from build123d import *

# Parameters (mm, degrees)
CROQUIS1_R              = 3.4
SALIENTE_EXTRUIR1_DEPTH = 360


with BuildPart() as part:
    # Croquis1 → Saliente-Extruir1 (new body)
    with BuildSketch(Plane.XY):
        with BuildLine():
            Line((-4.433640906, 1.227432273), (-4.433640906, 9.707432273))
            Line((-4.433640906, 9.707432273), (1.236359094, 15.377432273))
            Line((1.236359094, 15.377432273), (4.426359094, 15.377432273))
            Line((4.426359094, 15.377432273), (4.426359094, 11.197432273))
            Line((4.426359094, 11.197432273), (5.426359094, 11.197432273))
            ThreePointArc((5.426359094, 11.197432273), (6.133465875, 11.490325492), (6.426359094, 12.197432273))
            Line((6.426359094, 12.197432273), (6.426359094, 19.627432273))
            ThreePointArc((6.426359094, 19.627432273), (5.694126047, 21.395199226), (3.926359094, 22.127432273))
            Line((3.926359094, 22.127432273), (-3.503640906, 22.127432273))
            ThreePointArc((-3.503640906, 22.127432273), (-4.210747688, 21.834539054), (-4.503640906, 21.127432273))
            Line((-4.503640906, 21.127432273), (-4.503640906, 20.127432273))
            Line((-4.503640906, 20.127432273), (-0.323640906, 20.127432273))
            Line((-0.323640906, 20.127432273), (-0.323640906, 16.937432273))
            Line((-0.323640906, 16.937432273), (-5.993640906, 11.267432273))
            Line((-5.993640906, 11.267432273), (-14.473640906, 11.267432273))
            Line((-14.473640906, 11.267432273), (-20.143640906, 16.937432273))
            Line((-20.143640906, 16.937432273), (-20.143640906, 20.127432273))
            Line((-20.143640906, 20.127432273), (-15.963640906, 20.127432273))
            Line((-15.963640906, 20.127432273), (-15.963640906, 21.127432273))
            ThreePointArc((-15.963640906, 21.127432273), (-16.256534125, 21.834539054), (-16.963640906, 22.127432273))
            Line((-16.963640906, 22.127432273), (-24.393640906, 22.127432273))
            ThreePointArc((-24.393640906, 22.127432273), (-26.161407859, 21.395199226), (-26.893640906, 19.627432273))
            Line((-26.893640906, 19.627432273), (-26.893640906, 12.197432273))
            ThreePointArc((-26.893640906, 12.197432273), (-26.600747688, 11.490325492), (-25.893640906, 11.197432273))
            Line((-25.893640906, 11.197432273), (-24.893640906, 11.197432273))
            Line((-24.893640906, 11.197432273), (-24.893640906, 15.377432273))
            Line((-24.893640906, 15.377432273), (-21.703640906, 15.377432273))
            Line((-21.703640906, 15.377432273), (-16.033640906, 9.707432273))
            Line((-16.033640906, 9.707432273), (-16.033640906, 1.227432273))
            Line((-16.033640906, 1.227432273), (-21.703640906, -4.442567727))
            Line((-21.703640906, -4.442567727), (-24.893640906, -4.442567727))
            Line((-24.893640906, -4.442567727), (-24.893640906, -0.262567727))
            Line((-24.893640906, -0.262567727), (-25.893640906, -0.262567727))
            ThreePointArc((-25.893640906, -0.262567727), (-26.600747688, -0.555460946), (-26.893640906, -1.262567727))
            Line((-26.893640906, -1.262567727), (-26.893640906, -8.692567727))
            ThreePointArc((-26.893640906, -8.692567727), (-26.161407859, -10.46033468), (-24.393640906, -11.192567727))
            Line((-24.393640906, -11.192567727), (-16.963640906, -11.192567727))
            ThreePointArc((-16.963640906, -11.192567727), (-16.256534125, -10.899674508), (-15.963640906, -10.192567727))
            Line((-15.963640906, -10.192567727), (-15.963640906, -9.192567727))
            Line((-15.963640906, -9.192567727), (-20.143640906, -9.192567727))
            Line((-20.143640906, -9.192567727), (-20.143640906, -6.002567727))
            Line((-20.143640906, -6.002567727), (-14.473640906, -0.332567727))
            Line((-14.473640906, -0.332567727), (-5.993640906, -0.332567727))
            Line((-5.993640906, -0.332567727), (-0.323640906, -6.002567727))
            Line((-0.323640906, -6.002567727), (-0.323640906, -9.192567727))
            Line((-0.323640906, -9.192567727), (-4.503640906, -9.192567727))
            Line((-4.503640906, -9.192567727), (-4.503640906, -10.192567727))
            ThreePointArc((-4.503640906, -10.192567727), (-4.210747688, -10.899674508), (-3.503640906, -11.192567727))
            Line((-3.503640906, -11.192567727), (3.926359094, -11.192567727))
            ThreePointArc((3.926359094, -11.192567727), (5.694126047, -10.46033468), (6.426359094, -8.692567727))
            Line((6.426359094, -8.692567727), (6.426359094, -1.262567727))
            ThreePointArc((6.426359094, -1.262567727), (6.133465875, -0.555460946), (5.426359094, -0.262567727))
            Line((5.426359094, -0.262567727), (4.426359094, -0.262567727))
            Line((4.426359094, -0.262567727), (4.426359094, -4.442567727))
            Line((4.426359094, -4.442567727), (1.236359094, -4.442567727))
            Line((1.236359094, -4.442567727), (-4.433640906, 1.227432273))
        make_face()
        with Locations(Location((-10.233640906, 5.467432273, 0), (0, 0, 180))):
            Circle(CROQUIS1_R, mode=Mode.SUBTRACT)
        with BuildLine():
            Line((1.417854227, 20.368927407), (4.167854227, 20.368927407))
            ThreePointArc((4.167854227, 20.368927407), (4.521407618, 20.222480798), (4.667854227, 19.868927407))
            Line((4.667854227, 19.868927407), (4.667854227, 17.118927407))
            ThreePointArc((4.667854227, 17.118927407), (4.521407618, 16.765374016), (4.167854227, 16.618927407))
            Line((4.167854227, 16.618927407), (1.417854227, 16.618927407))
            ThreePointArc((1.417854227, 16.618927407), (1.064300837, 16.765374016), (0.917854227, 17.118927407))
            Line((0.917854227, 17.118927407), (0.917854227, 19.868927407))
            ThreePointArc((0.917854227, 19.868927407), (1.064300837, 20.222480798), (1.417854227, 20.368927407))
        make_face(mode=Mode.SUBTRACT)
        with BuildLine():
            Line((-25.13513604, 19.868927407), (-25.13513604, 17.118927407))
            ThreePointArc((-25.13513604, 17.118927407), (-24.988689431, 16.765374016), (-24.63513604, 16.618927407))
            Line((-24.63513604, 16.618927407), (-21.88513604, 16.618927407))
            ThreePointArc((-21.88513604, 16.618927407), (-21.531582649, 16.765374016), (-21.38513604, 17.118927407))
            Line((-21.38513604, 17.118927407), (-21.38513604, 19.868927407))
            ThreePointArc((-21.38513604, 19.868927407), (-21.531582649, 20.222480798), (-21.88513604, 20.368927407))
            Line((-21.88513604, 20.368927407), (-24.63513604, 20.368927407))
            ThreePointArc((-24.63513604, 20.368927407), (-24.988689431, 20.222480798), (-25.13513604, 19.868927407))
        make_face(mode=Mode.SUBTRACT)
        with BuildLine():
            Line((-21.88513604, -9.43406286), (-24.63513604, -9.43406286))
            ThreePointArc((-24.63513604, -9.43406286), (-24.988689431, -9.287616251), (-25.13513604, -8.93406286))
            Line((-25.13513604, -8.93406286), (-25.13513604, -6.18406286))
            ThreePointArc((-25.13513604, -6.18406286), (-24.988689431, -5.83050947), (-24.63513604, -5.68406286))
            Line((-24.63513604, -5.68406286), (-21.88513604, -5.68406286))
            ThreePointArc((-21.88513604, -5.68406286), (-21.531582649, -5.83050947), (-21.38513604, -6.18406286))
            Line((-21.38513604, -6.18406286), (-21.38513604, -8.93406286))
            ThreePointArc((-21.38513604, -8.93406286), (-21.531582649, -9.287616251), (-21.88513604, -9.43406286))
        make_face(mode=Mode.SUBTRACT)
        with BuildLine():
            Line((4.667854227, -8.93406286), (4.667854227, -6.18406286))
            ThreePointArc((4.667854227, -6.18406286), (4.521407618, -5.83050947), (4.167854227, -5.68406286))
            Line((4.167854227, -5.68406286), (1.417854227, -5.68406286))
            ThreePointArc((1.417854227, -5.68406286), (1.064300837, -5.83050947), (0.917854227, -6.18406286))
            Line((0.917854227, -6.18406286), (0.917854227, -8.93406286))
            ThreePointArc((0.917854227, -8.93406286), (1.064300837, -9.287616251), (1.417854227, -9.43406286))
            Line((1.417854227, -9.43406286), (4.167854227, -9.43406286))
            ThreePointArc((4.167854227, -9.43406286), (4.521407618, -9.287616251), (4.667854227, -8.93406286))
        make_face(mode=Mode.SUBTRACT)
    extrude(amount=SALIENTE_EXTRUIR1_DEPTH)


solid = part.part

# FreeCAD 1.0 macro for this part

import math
import FreeCAD as App
import Part
import Sketcher

V = App.Vector

doc = App.newDocument("Part")
body = doc.addObject("PartDesign::Body", "Body")

sketch1 = doc.addObject("Sketcher::SketchObject", "Sketch")
body.addObject(sketch1)
sketch1.AttachmentSupport = (doc.XY_Plane, [""])
sketch1.MapMode = "FlatFace"
sketch1.addGeometry(Part.LineSegment(V(-4.43, 1.23, 0), V(-4.43, 9.71, 0)), False)
sketch1.addGeometry(Part.LineSegment(V(-4.43, 9.71, 0), V(1.24, 15.38, 0)), False)
sketch1.addGeometry(Part.LineSegment(V(1.24, 15.38, 0), V(4.43, 15.38, 0)), False)
sketch1.addGeometry(Part.LineSegment(V(4.43, 15.38, 0), V(4.43, 11.2, 0)), False)
sketch1.addGeometry(Part.LineSegment(V(4.43, 11.2, 0), V(5.43, 11.2, 0)), False)
sketch1.addGeometry(Part.ArcOfCircle(Part.Circle(V(5.43, 12.2, 0), V(0, 0, 1), 1), math.radians(-90), math.radians(0)), False)
sketch1.addGeometry(Part.LineSegment(V(6.43, 12.2, 0), V(6.43, 19.63, 0)), False)
sketch1.addGeometry(Part.ArcOfCircle(Part.Circle(V(3.93, 19.63, 0), V(0, 0, 1), 2.5), math.radians(0), math.radians(90)), False)
sketch1.addGeometry(Part.LineSegment(V(3.93, 22.13, 0), V(-3.5, 22.13, 0)), False)
sketch1.addGeometry(Part.ArcOfCircle(Part.Circle(V(-3.5, 21.13, 0), V(0, 0, 1), 1), math.radians(90), math.radians(180)), False)
sketch1.addGeometry(Part.LineSegment(V(-4.5, 21.13, 0), V(-4.5, 20.13, 0)), False)
sketch1.addGeometry(Part.LineSegment(V(-4.5, 20.13, 0), V(-0.32, 20.13, 0)), False)
sketch1.addGeometry(Part.LineSegment(V(-0.32, 20.13, 0), V(-0.32, 16.94, 0)), False)
sketch1.addGeometry(Part.LineSegment(V(-0.32, 16.94, 0), V(-5.99, 11.27, 0)), False)
sketch1.addGeometry(Part.LineSegment(V(-5.99, 11.27, 0), V(-14.47, 11.27, 0)), False)
sketch1.addGeometry(Part.LineSegment(V(-14.47, 11.27, 0), V(-20.14, 16.94, 0)), False)
sketch1.addGeometry(Part.LineSegment(V(-20.14, 16.94, 0), V(-20.14, 20.13, 0)), False)
sketch1.addGeometry(Part.LineSegment(V(-20.14, 20.13, 0), V(-15.96, 20.13, 0)), False)
sketch1.addGeometry(Part.LineSegment(V(-15.96, 20.13, 0), V(-15.96, 21.13, 0)), False)
sketch1.addGeometry(Part.ArcOfCircle(Part.Circle(V(-16.96, 21.13, 0), V(0, 0, 1), 1), math.radians(0), math.radians(90)), False)
sketch1.addGeometry(Part.LineSegment(V(-16.96, 22.13, 0), V(-24.39, 22.13, 0)), False)
sketch1.addGeometry(Part.ArcOfCircle(Part.Circle(V(-24.39, 19.63, 0), V(0, 0, 1), 2.5), math.radians(90), math.radians(180)), False)
sketch1.addGeometry(Part.LineSegment(V(-26.89, 19.63, 0), V(-26.89, 12.2, 0)), False)
sketch1.addGeometry(Part.ArcOfCircle(Part.Circle(V(-25.89, 12.2, 0), V(0, 0, 1), 1), math.radians(180), math.radians(270)), False)
sketch1.addGeometry(Part.LineSegment(V(-25.89, 11.2, 0), V(-24.89, 11.2, 0)), False)
sketch1.addGeometry(Part.LineSegment(V(-24.89, 11.2, 0), V(-24.89, 15.38, 0)), False)
sketch1.addGeometry(Part.LineSegment(V(-24.89, 15.38, 0), V(-21.7, 15.38, 0)), False)
sketch1.addGeometry(Part.LineSegment(V(-21.7, 15.38, 0), V(-16.03, 9.71, 0)), False)
sketch1.addGeometry(Part.LineSegment(V(-16.03, 9.71, 0), V(-16.03, 1.23, 0)), False)
sketch1.addGeometry(Part.LineSegment(V(-16.03, 1.23, 0), V(-21.7, -4.44, 0)), False)
sketch1.addGeometry(Part.LineSegment(V(-21.7, -4.44, 0), V(-24.89, -4.44, 0)), False)
sketch1.addGeometry(Part.LineSegment(V(-24.89, -4.44, 0), V(-24.89, -0.26, 0)), False)
sketch1.addGeometry(Part.LineSegment(V(-24.89, -0.26, 0), V(-25.89, -0.26, 0)), False)
sketch1.addGeometry(Part.ArcOfCircle(Part.Circle(V(-25.89, -1.26, 0), V(0, 0, 1), 1), math.radians(90), math.radians(180)), False)
sketch1.addGeometry(Part.LineSegment(V(-26.89, -1.26, 0), V(-26.89, -8.69, 0)), False)
sketch1.addGeometry(Part.ArcOfCircle(Part.Circle(V(-24.39, -8.69, 0), V(0, 0, 1), 2.5), math.radians(180), math.radians(270)), False)
sketch1.addGeometry(Part.LineSegment(V(-24.39, -11.19, 0), V(-16.96, -11.19, 0)), False)
sketch1.addGeometry(Part.ArcOfCircle(Part.Circle(V(-16.96, -10.19, 0), V(0, 0, 1), 1), math.radians(-90), math.radians(0)), False)
sketch1.addGeometry(Part.LineSegment(V(-15.96, -10.19, 0), V(-15.96, -9.19, 0)), False)
sketch1.addGeometry(Part.LineSegment(V(-15.96, -9.19, 0), V(-20.14, -9.19, 0)), False)
sketch1.addGeometry(Part.LineSegment(V(-20.14, -9.19, 0), V(-20.14, -6, 0)), False)
sketch1.addGeometry(Part.LineSegment(V(-20.14, -6, 0), V(-14.47, -0.33, 0)), False)
sketch1.addGeometry(Part.LineSegment(V(-14.47, -0.33, 0), V(-5.99, -0.33, 0)), False)
sketch1.addGeometry(Part.LineSegment(V(-5.99, -0.33, 0), V(-0.32, -6, 0)), False)
sketch1.addGeometry(Part.LineSegment(V(-0.32, -6, 0), V(-0.32, -9.19, 0)), False)
sketch1.addGeometry(Part.LineSegment(V(-0.32, -9.19, 0), V(-4.5, -9.19, 0)), False)
sketch1.addGeometry(Part.LineSegment(V(-4.5, -9.19, 0), V(-4.5, -10.19, 0)), False)
sketch1.addGeometry(Part.ArcOfCircle(Part.Circle(V(-3.5, -10.19, 0), V(0, 0, 1), 1), math.radians(180), math.radians(270)), False)
sketch1.addGeometry(Part.LineSegment(V(-3.5, -11.19, 0), V(3.93, -11.19, 0)), False)
sketch1.addGeometry(Part.ArcOfCircle(Part.Circle(V(3.93, -8.69, 0), V(0, 0, 1), 2.5), math.radians(-90), math.radians(0)), False)
sketch1.addGeometry(Part.LineSegment(V(6.43, -8.69, 0), V(6.43, -1.26, 0)), False)
sketch1.addGeometry(Part.ArcOfCircle(Part.Circle(V(5.43, -1.26, 0), V(0, 0, 1), 1), math.radians(0), math.radians(90)), False)
sketch1.addGeometry(Part.LineSegment(V(5.43, -0.26, 0), V(4.43, -0.26, 0)), False)
sketch1.addGeometry(Part.LineSegment(V(4.43, -0.26, 0), V(4.43, -4.44, 0)), False)
sketch1.addGeometry(Part.LineSegment(V(4.43, -4.44, 0), V(1.24, -4.44, 0)), False)
sketch1.addGeometry(Part.LineSegment(V(1.24, -4.44, 0), V(-4.43, 1.23, 0)), False)
sketch1.addGeometry(Part.ArcOfCircle(Part.Circle(V(-21.89, -8.93, 0), V(0, 0, 1), 0.5), math.radians(-90), math.radians(0)), False)
sketch1.addGeometry(Part.LineSegment(V(-21.89, -9.43, 0), V(-24.64, -9.43, 0)), False)
sketch1.addGeometry(Part.ArcOfCircle(Part.Circle(V(-24.64, -8.93, 0), V(0, 0, 1), 0.5), math.radians(180), math.radians(270)), False)
sketch1.addGeometry(Part.LineSegment(V(-25.14, -8.93, 0), V(-25.14, -6.18, 0)), False)
sketch1.addGeometry(Part.ArcOfCircle(Part.Circle(V(-24.64, -6.18, 0), V(0, 0, 1), 0.5), math.radians(90), math.radians(180)), False)
sketch1.addGeometry(Part.LineSegment(V(-24.64, -5.68, 0), V(-21.89, -5.68, 0)), False)
sketch1.addGeometry(Part.ArcOfCircle(Part.Circle(V(-21.89, -6.18, 0), V(0, 0, 1), 0.5), math.radians(0), math.radians(90)), False)
sketch1.addGeometry(Part.LineSegment(V(-21.39, -6.18, 0), V(-21.39, -8.93, 0)), False)
sketch1.addGeometry(Part.LineSegment(V(4.67, -6.18, 0), V(4.67, -8.93, 0)), False)
sketch1.addGeometry(Part.ArcOfCircle(Part.Circle(V(4.17, -8.93, 0), V(0, 0, 1), 0.5), math.radians(-90), math.radians(0)), False)
sketch1.addGeometry(Part.LineSegment(V(4.17, -9.43, 0), V(1.42, -9.43, 0)), False)
sketch1.addGeometry(Part.ArcOfCircle(Part.Circle(V(1.42, -8.93, 0), V(0, 0, 1), 0.5), math.radians(180), math.radians(270)), False)
sketch1.addGeometry(Part.LineSegment(V(0.92, -8.93, 0), V(0.92, -6.18, 0)), False)
sketch1.addGeometry(Part.ArcOfCircle(Part.Circle(V(1.42, -6.18, 0), V(0, 0, 1), 0.5), math.radians(90), math.radians(180)), False)
sketch1.addGeometry(Part.LineSegment(V(1.42, -5.68, 0), V(4.17, -5.68, 0)), False)
sketch1.addGeometry(Part.ArcOfCircle(Part.Circle(V(4.17, -6.18, 0), V(0, 0, 1), 0.5), math.radians(0), math.radians(90)), False)
sketch1.addGeometry(Part.Circle(V(-10.23, 5.47, 0), V(0, 0, 1), 3.4), False)
sketch1.addGeometry(Part.LineSegment(V(-25.14, 17.12, 0), V(-25.14, 19.87, 0)), False)
sketch1.addGeometry(Part.ArcOfCircle(Part.Circle(V(-24.64, 19.87, 0), V(0, 0, 1), 0.5), math.radians(90), math.radians(180)), False)
sketch1.addGeometry(Part.LineSegment(V(-24.64, 20.37, 0), V(-21.89, 20.37, 0)), False)
sketch1.addGeometry(Part.ArcOfCircle(Part.Circle(V(-21.89, 19.87, 0), V(0, 0, 1), 0.5), math.radians(0), math.radians(90)), False)
sketch1.addGeometry(Part.LineSegment(V(-21.39, 19.87, 0), V(-21.39, 17.12, 0)), False)
sketch1.addGeometry(Part.ArcOfCircle(Part.Circle(V(-21.89, 17.12, 0), V(0, 0, 1), 0.5), math.radians(-90), math.radians(0)), False)
sketch1.addGeometry(Part.LineSegment(V(-21.89, 16.62, 0), V(-24.64, 16.62, 0)), False)
sketch1.addGeometry(Part.ArcOfCircle(Part.Circle(V(-24.64, 17.12, 0), V(0, 0, 1), 0.5), math.radians(180), math.radians(270)), False)
sketch1.addGeometry(Part.ArcOfCircle(Part.Circle(V(1.42, 19.87, 0), V(0, 0, 1), 0.5), math.radians(90), math.radians(180)), False)
sketch1.addGeometry(Part.LineSegment(V(1.42, 20.37, 0), V(4.17, 20.37, 0)), False)
sketch1.addGeometry(Part.ArcOfCircle(Part.Circle(V(4.17, 19.87, 0), V(0, 0, 1), 0.5), math.radians(0), math.radians(90)), False)
sketch1.addGeometry(Part.LineSegment(V(4.67, 19.87, 0), V(4.67, 17.12, 0)), False)
sketch1.addGeometry(Part.ArcOfCircle(Part.Circle(V(4.17, 17.12, 0), V(0, 0, 1), 0.5), math.radians(-90), math.radians(0)), False)
sketch1.addGeometry(Part.LineSegment(V(4.17, 16.62, 0), V(1.42, 16.62, 0)), False)
sketch1.addGeometry(Part.ArcOfCircle(Part.Circle(V(1.42, 17.12, 0), V(0, 0, 1), 0.5), math.radians(180), math.radians(270)), False)
sketch1.addGeometry(Part.LineSegment(V(0.92, 17.12, 0), V(0.92, 19.87, 0)), False)
sketch1.addConstraint(Sketcher.Constraint("Coincident", 0, 2, 1, 1))
sketch1.addConstraint(Sketcher.Constraint("Coincident", 1, 2, 2, 1))
sketch1.addConstraint(Sketcher.Constraint("Coincident", 2, 2, 3, 1))
sketch1.addConstraint(Sketcher.Constraint("Coincident", 3, 2, 4, 1))
sketch1.addConstraint(Sketcher.Constraint("Tangent", 4, 2, 5, 1))
sketch1.addConstraint(Sketcher.Constraint("Tangent", 5, 2, 6, 1))
sketch1.addConstraint(Sketcher.Constraint("Tangent", 6, 2, 7, 1))
sketch1.addConstraint(Sketcher.Constraint("Tangent", 7, 2, 8, 1))
sketch1.addConstraint(Sketcher.Constraint("Tangent", 8, 2, 9, 1))
sketch1.addConstraint(Sketcher.Constraint("Tangent", 9, 2, 10, 1))
sketch1.addConstraint(Sketcher.Constraint("Coincident", 10, 2, 11, 1))
sketch1.addConstraint(Sketcher.Constraint("Coincident", 11, 2, 12, 1))
sketch1.addConstraint(Sketcher.Constraint("Coincident", 12, 2, 13, 1))
sketch1.addConstraint(Sketcher.Constraint("Coincident", 13, 2, 14, 1))
sketch1.addConstraint(Sketcher.Constraint("Coincident", 14, 2, 15, 1))
sketch1.addConstraint(Sketcher.Constraint("Coincident", 15, 2, 16, 1))
sketch1.addConstraint(Sketcher.Constraint("Coincident", 16, 2, 17, 1))
sketch1.addConstraint(Sketcher.Constraint("Coincident", 17, 2, 18, 1))
sketch1.addConstraint(Sketcher.Constraint("Tangent", 18, 2, 19, 1))
sketch1.addConstraint(Sketcher.Constraint("Tangent", 19, 2, 20, 1))
sketch1.addConstraint(Sketcher.Constraint("Tangent", 20, 2, 21, 1))
sketch1.addConstraint(Sketcher.Constraint("Tangent", 21, 2, 22, 1))
sketch1.addConstraint(Sketcher.Constraint("Tangent", 22, 2, 23, 1))
sketch1.addConstraint(Sketcher.Constraint("Tangent", 23, 2, 24, 1))
sketch1.addConstraint(Sketcher.Constraint("Coincident", 24, 2, 25, 1))
sketch1.addConstraint(Sketcher.Constraint("Coincident", 25, 2, 26, 1))
sketch1.addConstraint(Sketcher.Constraint("Coincident", 26, 2, 27, 1))
sketch1.addConstraint(Sketcher.Constraint("Coincident", 27, 2, 28, 1))
sketch1.addConstraint(Sketcher.Constraint("Coincident", 28, 2, 29, 1))
sketch1.addConstraint(Sketcher.Constraint("Coincident", 29, 2, 30, 1))
sketch1.addConstraint(Sketcher.Constraint("Coincident", 30, 2, 31, 1))
sketch1.addConstraint(Sketcher.Constraint("Coincident", 31, 2, 32, 1))
sketch1.addConstraint(Sketcher.Constraint("Tangent", 32, 2, 33, 1))
sketch1.addConstraint(Sketcher.Constraint("Tangent", 33, 2, 34, 1))
sketch1.addConstraint(Sketcher.Constraint("Tangent", 34, 2, 35, 1))
sketch1.addConstraint(Sketcher.Constraint("Tangent", 35, 2, 36, 1))
sketch1.addConstraint(Sketcher.Constraint("Tangent", 36, 2, 37, 1))
sketch1.addConstraint(Sketcher.Constraint("Tangent", 37, 2, 38, 1))
sketch1.addConstraint(Sketcher.Constraint("Coincident", 38, 2, 39, 1))
sketch1.addConstraint(Sketcher.Constraint("Coincident", 39, 2, 40, 1))
sketch1.addConstraint(Sketcher.Constraint("Coincident", 40, 2, 41, 1))
sketch1.addConstraint(Sketcher.Constraint("Coincident", 41, 2, 42, 1))
sketch1.addConstraint(Sketcher.Constraint("Coincident", 42, 2, 43, 1))
sketch1.addConstraint(Sketcher.Constraint("Coincident", 43, 2, 44, 1))
sketch1.addConstraint(Sketcher.Constraint("Coincident", 44, 2, 45, 1))
sketch1.addConstraint(Sketcher.Constraint("Coincident", 45, 2, 46, 1))
sketch1.addConstraint(Sketcher.Constraint("Tangent", 46, 2, 47, 1))
sketch1.addConstraint(Sketcher.Constraint("Tangent", 47, 2, 48, 1))
sketch1.addConstraint(Sketcher.Constraint("Tangent", 48, 2, 49, 1))
sketch1.addConstraint(Sketcher.Constraint("Tangent", 49, 2, 50, 1))
sketch1.addConstraint(Sketcher.Constraint("Tangent", 50, 2, 51, 1))
sketch1.addConstraint(Sketcher.Constraint("Tangent", 51, 2, 52, 1))
sketch1.addConstraint(Sketcher.Constraint("Coincident", 52, 2, 53, 1))
sketch1.addConstraint(Sketcher.Constraint("Coincident", 53, 2, 54, 1))
sketch1.addConstraint(Sketcher.Constraint("Coincident", 54, 2, 55, 1))
sketch1.addConstraint(Sketcher.Constraint("Coincident", 55, 2, 0, 1))
sketch1.addConstraint(Sketcher.Constraint("Tangent", 56, 1, 57, 1))
sketch1.addConstraint(Sketcher.Constraint("Tangent", 57, 2, 58, 2))
sketch1.addConstraint(Sketcher.Constraint("Tangent", 58, 1, 59, 1))
sketch1.addConstraint(Sketcher.Constraint("Tangent", 59, 2, 60, 2))
sketch1.addConstraint(Sketcher.Constraint("Tangent", 60, 1, 61, 1))
sketch1.addConstraint(Sketcher.Constraint("Tangent", 61, 2, 62, 2))
sketch1.addConstraint(Sketcher.Constraint("Tangent", 62, 1, 63, 1))
sketch1.addConstraint(Sketcher.Constraint("Tangent", 63, 2, 56, 2))
sketch1.addConstraint(Sketcher.Constraint("Tangent", 64, 2, 65, 2))
sketch1.addConstraint(Sketcher.Constraint("Tangent", 65, 1, 66, 1))
sketch1.addConstraint(Sketcher.Constraint("Tangent", 66, 2, 67, 2))
sketch1.addConstraint(Sketcher.Constraint("Tangent", 67, 1, 68, 1))
sketch1.addConstraint(Sketcher.Constraint("Tangent", 68, 2, 69, 2))
sketch1.addConstraint(Sketcher.Constraint("Tangent", 69, 1, 70, 1))
sketch1.addConstraint(Sketcher.Constraint("Tangent", 70, 2, 71, 2))
sketch1.addConstraint(Sketcher.Constraint("Tangent", 71, 1, 64, 1))
sketch1.addConstraint(Sketcher.Constraint("Tangent", 73, 2, 74, 2))
sketch1.addConstraint(Sketcher.Constraint("Tangent", 74, 1, 75, 1))
sketch1.addConstraint(Sketcher.Constraint("Tangent", 75, 2, 76, 2))
sketch1.addConstraint(Sketcher.Constraint("Tangent", 76, 1, 77, 1))
sketch1.addConstraint(Sketcher.Constraint("Tangent", 77, 2, 78, 2))
sketch1.addConstraint(Sketcher.Constraint("Tangent", 78, 1, 79, 1))
sketch1.addConstraint(Sketcher.Constraint("Tangent", 79, 2, 80, 2))
sketch1.addConstraint(Sketcher.Constraint("Tangent", 80, 1, 73, 1))
sketch1.addConstraint(Sketcher.Constraint("Tangent", 81, 1, 82, 1))
sketch1.addConstraint(Sketcher.Constraint("Tangent", 82, 2, 83, 2))
sketch1.addConstraint(Sketcher.Constraint("Tangent", 83, 1, 84, 1))
sketch1.addConstraint(Sketcher.Constraint("Tangent", 84, 2, 85, 2))
sketch1.addConstraint(Sketcher.Constraint("Tangent", 85, 1, 86, 1))
sketch1.addConstraint(Sketcher.Constraint("Tangent", 86, 2, 87, 2))
sketch1.addConstraint(Sketcher.Constraint("Tangent", 87, 1, 88, 1))
sketch1.addConstraint(Sketcher.Constraint("Tangent", 88, 2, 81, 2))
sketch1.addConstraint(Sketcher.Constraint("Vertical", 0))
sketch1.addConstraint(Sketcher.Constraint("Horizontal", 2))
sketch1.addConstraint(Sketcher.Constraint("Vertical", 3))
sketch1.addConstraint(Sketcher.Constraint("Horizontal", 4))
sketch1.addConstraint(Sketcher.Constraint("Vertical", 6))
sketch1.addConstraint(Sketcher.Constraint("Horizontal", 8))
sketch1.addConstraint(Sketcher.Constraint("Vertical", 10))
sketch1.addConstraint(Sketcher.Constraint("Horizontal", 11))
sketch1.addConstraint(Sketcher.Constraint("Vertical", 12))
sketch1.addConstraint(Sketcher.Constraint("Horizontal", 14))
sketch1.addConstraint(Sketcher.Constraint("Vertical", 16))
sketch1.addConstraint(Sketcher.Constraint("Horizontal", 17))
sketch1.addConstraint(Sketcher.Constraint("Vertical", 18))
sketch1.addConstraint(Sketcher.Constraint("Horizontal", 20))
sketch1.addConstraint(Sketcher.Constraint("Vertical", 22))
sketch1.addConstraint(Sketcher.Constraint("Horizontal", 24))
sketch1.addConstraint(Sketcher.Constraint("Vertical", 25))
sketch1.addConstraint(Sketcher.Constraint("Horizontal", 26))
sketch1.addConstraint(Sketcher.Constraint("Vertical", 28))
sketch1.addConstraint(Sketcher.Constraint("Horizontal", 30))
sketch1.addConstraint(Sketcher.Constraint("Vertical", 31))
sketch1.addConstraint(Sketcher.Constraint("Horizontal", 32))
sketch1.addConstraint(Sketcher.Constraint("Vertical", 34))
sketch1.addConstraint(Sketcher.Constraint("Horizontal", 36))
sketch1.addConstraint(Sketcher.Constraint("Vertical", 38))
sketch1.addConstraint(Sketcher.Constraint("Horizontal", 39))
sketch1.addConstraint(Sketcher.Constraint("Vertical", 40))
sketch1.addConstraint(Sketcher.Constraint("Horizontal", 42))
sketch1.addConstraint(Sketcher.Constraint("Vertical", 44))
sketch1.addConstraint(Sketcher.Constraint("Horizontal", 45))
sketch1.addConstraint(Sketcher.Constraint("Vertical", 46))
sketch1.addConstraint(Sketcher.Constraint("Horizontal", 48))
sketch1.addConstraint(Sketcher.Constraint("Vertical", 50))
sketch1.addConstraint(Sketcher.Constraint("Horizontal", 52))
sketch1.addConstraint(Sketcher.Constraint("Vertical", 53))
sketch1.addConstraint(Sketcher.Constraint("Horizontal", 54))
sketch1.addConstraint(Sketcher.Constraint("Horizontal", 57))
sketch1.addConstraint(Sketcher.Constraint("Vertical", 59))
sketch1.addConstraint(Sketcher.Constraint("Horizontal", 61))
sketch1.addConstraint(Sketcher.Constraint("Vertical", 63))
sketch1.addConstraint(Sketcher.Constraint("Vertical", 64))
sketch1.addConstraint(Sketcher.Constraint("Horizontal", 66))
sketch1.addConstraint(Sketcher.Constraint("Vertical", 68))
sketch1.addConstraint(Sketcher.Constraint("Horizontal", 70))
sketch1.addConstraint(Sketcher.Constraint("Vertical", 73))
sketch1.addConstraint(Sketcher.Constraint("Horizontal", 75))
sketch1.addConstraint(Sketcher.Constraint("Vertical", 77))
sketch1.addConstraint(Sketcher.Constraint("Horizontal", 79))
sketch1.addConstraint(Sketcher.Constraint("Horizontal", 82))
sketch1.addConstraint(Sketcher.Constraint("Vertical", 84))
sketch1.addConstraint(Sketcher.Constraint("Horizontal", 86))
sketch1.addConstraint(Sketcher.Constraint("Vertical", 88))
sketch1.addConstraint(Sketcher.Constraint("Equal", 5, 9))
sketch1.addConstraint(Sketcher.Constraint("Equal", 9, 19))
sketch1.addConstraint(Sketcher.Constraint("Equal", 7, 21))
sketch1.addConstraint(Sketcher.Constraint("Equal", 19, 23))
sketch1.addConstraint(Sketcher.Constraint("Equal", 23, 33))
sketch1.addConstraint(Sketcher.Constraint("Equal", 21, 35))
sketch1.addConstraint(Sketcher.Constraint("Equal", 33, 37))
sketch1.addConstraint(Sketcher.Constraint("Equal", 37, 47))
sketch1.addConstraint(Sketcher.Constraint("Equal", 35, 49))
sketch1.addConstraint(Sketcher.Constraint("Equal", 47, 51))
sketch1.addConstraint(Sketcher.Constraint("Equal", 56, 58))
sketch1.addConstraint(Sketcher.Constraint("Equal", 58, 60))
sketch1.addConstraint(Sketcher.Constraint("Equal", 60, 62))
sketch1.addConstraint(Sketcher.Constraint("Equal", 62, 65))
sketch1.addConstraint(Sketcher.Constraint("Equal", 65, 67))
sketch1.addConstraint(Sketcher.Constraint("Equal", 67, 69))
sketch1.addConstraint(Sketcher.Constraint("Equal", 69, 71))
sketch1.addConstraint(Sketcher.Constraint("Equal", 71, 74))
sketch1.addConstraint(Sketcher.Constraint("Equal", 74, 76))
sketch1.addConstraint(Sketcher.Constraint("Equal", 76, 78))
sketch1.addConstraint(Sketcher.Constraint("Equal", 78, 80))
sketch1.addConstraint(Sketcher.Constraint("Equal", 80, 81))
sketch1.addConstraint(Sketcher.Constraint("Equal", 81, 83))
sketch1.addConstraint(Sketcher.Constraint("Equal", 83, 85))
sketch1.addConstraint(Sketcher.Constraint("Equal", 85, 87))
sketch1.addConstraint(Sketcher.Constraint("Parallel", 1, 13))
sketch1.addConstraint(Sketcher.Constraint("Perpendicular", 13, 15))
sketch1.addConstraint(Sketcher.Constraint("Parallel", 15, 27))
sketch1.addConstraint(Sketcher.Constraint("Perpendicular", 27, 29))
sketch1.addConstraint(Sketcher.Constraint("Parallel", 29, 41))
sketch1.addConstraint(Sketcher.Constraint("Perpendicular", 41, 43))
sketch1.addConstraint(Sketcher.Constraint("Parallel", 43, 55))
sketch1.addConstraint(Sketcher.Constraint("Horizontal", 9, 3, 19, 3))
sketch1.addConstraint(Sketcher.Constraint("Horizontal", 5, 3, 23, 3))
sketch1.addConstraint(Sketcher.Constraint("Horizontal", 37, 3, 47, 3))
sketch1.addConstraint(Sketcher.Constraint("Horizontal", 33, 3, 51, 3))
sketch1.addConstraint(Sketcher.Constraint("Horizontal", 58, 3, 65, 3))
sketch1.addConstraint(Sketcher.Constraint("Horizontal", 62, 3, 69, 3))
sketch1.addConstraint(Sketcher.Constraint("Horizontal", 76, 3, 81, 3))
sketch1.addConstraint(Sketcher.Constraint("Horizontal", 80, 3, 85, 3))
sketch1.addConstraint(Sketcher.Constraint("Horizontal", 12, 2, 15, 2))
sketch1.addConstraint(Sketcher.Constraint("Horizontal", 11, 2, 16, 2))
sketch1.addConstraint(Sketcher.Constraint("Horizontal", 2, 2, 25, 2))
sketch1.addConstraint(Sketcher.Constraint("Horizontal", 0, 2, 27, 2))
sketch1.addConstraint(Sketcher.Constraint("Horizontal", 40, 2, 43, 2))
sketch1.addConstraint(Sketcher.Constraint("Horizontal", 39, 2, 44, 2))
sketch1.addConstraint(Sketcher.Constraint("Horizontal", 30, 2, 53, 2))
sketch1.addConstraint(Sketcher.Constraint("Horizontal", 28, 2, 55, 2))
sketch1.addConstraint(Sketcher.Constraint("Vertical", 23, 3, 33, 3))
sketch1.addConstraint(Sketcher.Constraint("Vertical", 19, 3, 37, 3))
sketch1.addConstraint(Sketcher.Constraint("Vertical", 9, 3, 47, 3))
sketch1.addConstraint(Sketcher.Constraint("Vertical", 7, 3, 49, 3))
sketch1.addConstraint(Sketcher.Constraint("Vertical", 60, 3, 74, 3))
sketch1.addConstraint(Sketcher.Constraint("Vertical", 62, 3, 76, 3))
sketch1.addConstraint(Sketcher.Constraint("Vertical", 69, 3, 81, 3))
sketch1.addConstraint(Sketcher.Constraint("Vertical", 71, 3, 83, 3))
sketch1.addConstraint(Sketcher.Constraint("Vertical", 26, 2, 29, 2))
sketch1.addConstraint(Sketcher.Constraint("Vertical", 25, 2, 30, 2))
sketch1.addConstraint(Sketcher.Constraint("Vertical", 16, 2, 39, 2))
sketch1.addConstraint(Sketcher.Constraint("Vertical", 14, 2, 41, 2))
sketch1.addConstraint(Sketcher.Constraint("Vertical", 13, 2, 42, 2))
sketch1.addConstraint(Sketcher.Constraint("Vertical", 12, 2, 43, 2))
sketch1.addConstraint(Sketcher.Constraint("Vertical", 3, 2, 52, 2))
sketch1.addConstraint(Sketcher.Constraint("Equal", 11, 17))
sketch1.addConstraint(Sketcher.Constraint("Equal", 8, 20))
sketch1.addConstraint(Sketcher.Constraint("Equal", 4, 24))
sketch1.addConstraint(Sketcher.Constraint("Equal", 2, 26))
sketch1.addConstraint(Sketcher.Constraint("Equal", 61, 66))
sketch1.addConstraint(Sketcher.Constraint("Equal", 42, 0))
sketch1.addConstraint(Sketcher.Constraint("Equal", 45, 3))
sketch1.addConstraint(Sketcher.Constraint("Equal", 48, 6))
sketch1.addConstraint(Sketcher.Constraint("Equal", 52, 10))
sketch1.addConstraint(Sketcher.Constraint("Equal", 54, 12))
sketch1.addConstraint(Sketcher.Constraint("Equal", 25, 31))
sketch1.addConstraint(Sketcher.Constraint("Equal", 22, 34))
sketch1.addConstraint(Sketcher.Constraint("Equal", 18, 38))
sketch1.addConstraint(Sketcher.Constraint("Equal", 16, 40))
sketch1.addConstraint(Sketcher.Constraint("Equal", 86, 59))
sketch1.addConstraint(Sketcher.Constraint("Equal", 68, 73))
sketch1.addConstraint(Sketcher.Constraint("Equal", 1, 13))
sketch1.addConstraint(Sketcher.Constraint("Radius", 5, 1.0))
sketch1.addConstraint(Sketcher.Constraint("Diameter", 72, 6.8))
sketch1.addConstraint(Sketcher.Constraint("Radius", 7, 2.5))
sketch1.addConstraint(Sketcher.Constraint("Radius", 56, 0.5))
sketch1.addConstraint(Sketcher.Constraint("DistanceX", 4, 1, 4, 2, 1.0))
sketch1.addConstraint(Sketcher.Constraint("DistanceX", 2, 1, 2, 2, 3.19))
sketch1.addConstraint(Sketcher.Constraint("DistanceX", 8, 2, 8, 1, 7.43))
sketch1.addConstraint(Sketcher.Constraint("DistanceX", 11, 1, 11, 2, 4.18))
sketch1.addConstraint(Sketcher.Constraint("DistanceX", 14, 2, 14, 1, 8.48))
sketch1.addConstraint(Sketcher.Constraint("DistanceX", 57, 2, 57, 1, 2.75))
sketch1.addConstraint(Sketcher.Constraint("Distance", 1, 8.018591))
sketch1.addConstraint(Sketcher.Constraint("DistanceX", -1, 1, 5, 3, 5.426359))
sketch1.addConstraint(Sketcher.Constraint("DistanceX", 72, 3, -1, 1, 10.233641))
sketch1.addConstraint(Sketcher.Constraint("DistanceY", -1, 1, 5, 3, 12.197432))
sketch1.addConstraint(Sketcher.Constraint("DistanceX", 56, 3, -1, 1, 21.885136))
sketch1.addConstraint(Sketcher.Constraint("DistanceY", 56, 3, -1, 1, 8.934063))
sketch1.addConstraint(Sketcher.Constraint("DistanceX", -1, 1, 65, 3, 4.167854))
sketch1.addConstraint(Sketcher.Constraint("DistanceY", -1, 1, 72, 3, 5.467432))
sketch1.addConstraint(Sketcher.Constraint("DistanceY", -1, 1, 74, 3, 19.868927))
pad1 = doc.addObject("PartDesign::Pad", "Pad")
body.addObject(pad1)
pad1.Profile = sketch1
pad1.Length = 360

doc.recompute()
